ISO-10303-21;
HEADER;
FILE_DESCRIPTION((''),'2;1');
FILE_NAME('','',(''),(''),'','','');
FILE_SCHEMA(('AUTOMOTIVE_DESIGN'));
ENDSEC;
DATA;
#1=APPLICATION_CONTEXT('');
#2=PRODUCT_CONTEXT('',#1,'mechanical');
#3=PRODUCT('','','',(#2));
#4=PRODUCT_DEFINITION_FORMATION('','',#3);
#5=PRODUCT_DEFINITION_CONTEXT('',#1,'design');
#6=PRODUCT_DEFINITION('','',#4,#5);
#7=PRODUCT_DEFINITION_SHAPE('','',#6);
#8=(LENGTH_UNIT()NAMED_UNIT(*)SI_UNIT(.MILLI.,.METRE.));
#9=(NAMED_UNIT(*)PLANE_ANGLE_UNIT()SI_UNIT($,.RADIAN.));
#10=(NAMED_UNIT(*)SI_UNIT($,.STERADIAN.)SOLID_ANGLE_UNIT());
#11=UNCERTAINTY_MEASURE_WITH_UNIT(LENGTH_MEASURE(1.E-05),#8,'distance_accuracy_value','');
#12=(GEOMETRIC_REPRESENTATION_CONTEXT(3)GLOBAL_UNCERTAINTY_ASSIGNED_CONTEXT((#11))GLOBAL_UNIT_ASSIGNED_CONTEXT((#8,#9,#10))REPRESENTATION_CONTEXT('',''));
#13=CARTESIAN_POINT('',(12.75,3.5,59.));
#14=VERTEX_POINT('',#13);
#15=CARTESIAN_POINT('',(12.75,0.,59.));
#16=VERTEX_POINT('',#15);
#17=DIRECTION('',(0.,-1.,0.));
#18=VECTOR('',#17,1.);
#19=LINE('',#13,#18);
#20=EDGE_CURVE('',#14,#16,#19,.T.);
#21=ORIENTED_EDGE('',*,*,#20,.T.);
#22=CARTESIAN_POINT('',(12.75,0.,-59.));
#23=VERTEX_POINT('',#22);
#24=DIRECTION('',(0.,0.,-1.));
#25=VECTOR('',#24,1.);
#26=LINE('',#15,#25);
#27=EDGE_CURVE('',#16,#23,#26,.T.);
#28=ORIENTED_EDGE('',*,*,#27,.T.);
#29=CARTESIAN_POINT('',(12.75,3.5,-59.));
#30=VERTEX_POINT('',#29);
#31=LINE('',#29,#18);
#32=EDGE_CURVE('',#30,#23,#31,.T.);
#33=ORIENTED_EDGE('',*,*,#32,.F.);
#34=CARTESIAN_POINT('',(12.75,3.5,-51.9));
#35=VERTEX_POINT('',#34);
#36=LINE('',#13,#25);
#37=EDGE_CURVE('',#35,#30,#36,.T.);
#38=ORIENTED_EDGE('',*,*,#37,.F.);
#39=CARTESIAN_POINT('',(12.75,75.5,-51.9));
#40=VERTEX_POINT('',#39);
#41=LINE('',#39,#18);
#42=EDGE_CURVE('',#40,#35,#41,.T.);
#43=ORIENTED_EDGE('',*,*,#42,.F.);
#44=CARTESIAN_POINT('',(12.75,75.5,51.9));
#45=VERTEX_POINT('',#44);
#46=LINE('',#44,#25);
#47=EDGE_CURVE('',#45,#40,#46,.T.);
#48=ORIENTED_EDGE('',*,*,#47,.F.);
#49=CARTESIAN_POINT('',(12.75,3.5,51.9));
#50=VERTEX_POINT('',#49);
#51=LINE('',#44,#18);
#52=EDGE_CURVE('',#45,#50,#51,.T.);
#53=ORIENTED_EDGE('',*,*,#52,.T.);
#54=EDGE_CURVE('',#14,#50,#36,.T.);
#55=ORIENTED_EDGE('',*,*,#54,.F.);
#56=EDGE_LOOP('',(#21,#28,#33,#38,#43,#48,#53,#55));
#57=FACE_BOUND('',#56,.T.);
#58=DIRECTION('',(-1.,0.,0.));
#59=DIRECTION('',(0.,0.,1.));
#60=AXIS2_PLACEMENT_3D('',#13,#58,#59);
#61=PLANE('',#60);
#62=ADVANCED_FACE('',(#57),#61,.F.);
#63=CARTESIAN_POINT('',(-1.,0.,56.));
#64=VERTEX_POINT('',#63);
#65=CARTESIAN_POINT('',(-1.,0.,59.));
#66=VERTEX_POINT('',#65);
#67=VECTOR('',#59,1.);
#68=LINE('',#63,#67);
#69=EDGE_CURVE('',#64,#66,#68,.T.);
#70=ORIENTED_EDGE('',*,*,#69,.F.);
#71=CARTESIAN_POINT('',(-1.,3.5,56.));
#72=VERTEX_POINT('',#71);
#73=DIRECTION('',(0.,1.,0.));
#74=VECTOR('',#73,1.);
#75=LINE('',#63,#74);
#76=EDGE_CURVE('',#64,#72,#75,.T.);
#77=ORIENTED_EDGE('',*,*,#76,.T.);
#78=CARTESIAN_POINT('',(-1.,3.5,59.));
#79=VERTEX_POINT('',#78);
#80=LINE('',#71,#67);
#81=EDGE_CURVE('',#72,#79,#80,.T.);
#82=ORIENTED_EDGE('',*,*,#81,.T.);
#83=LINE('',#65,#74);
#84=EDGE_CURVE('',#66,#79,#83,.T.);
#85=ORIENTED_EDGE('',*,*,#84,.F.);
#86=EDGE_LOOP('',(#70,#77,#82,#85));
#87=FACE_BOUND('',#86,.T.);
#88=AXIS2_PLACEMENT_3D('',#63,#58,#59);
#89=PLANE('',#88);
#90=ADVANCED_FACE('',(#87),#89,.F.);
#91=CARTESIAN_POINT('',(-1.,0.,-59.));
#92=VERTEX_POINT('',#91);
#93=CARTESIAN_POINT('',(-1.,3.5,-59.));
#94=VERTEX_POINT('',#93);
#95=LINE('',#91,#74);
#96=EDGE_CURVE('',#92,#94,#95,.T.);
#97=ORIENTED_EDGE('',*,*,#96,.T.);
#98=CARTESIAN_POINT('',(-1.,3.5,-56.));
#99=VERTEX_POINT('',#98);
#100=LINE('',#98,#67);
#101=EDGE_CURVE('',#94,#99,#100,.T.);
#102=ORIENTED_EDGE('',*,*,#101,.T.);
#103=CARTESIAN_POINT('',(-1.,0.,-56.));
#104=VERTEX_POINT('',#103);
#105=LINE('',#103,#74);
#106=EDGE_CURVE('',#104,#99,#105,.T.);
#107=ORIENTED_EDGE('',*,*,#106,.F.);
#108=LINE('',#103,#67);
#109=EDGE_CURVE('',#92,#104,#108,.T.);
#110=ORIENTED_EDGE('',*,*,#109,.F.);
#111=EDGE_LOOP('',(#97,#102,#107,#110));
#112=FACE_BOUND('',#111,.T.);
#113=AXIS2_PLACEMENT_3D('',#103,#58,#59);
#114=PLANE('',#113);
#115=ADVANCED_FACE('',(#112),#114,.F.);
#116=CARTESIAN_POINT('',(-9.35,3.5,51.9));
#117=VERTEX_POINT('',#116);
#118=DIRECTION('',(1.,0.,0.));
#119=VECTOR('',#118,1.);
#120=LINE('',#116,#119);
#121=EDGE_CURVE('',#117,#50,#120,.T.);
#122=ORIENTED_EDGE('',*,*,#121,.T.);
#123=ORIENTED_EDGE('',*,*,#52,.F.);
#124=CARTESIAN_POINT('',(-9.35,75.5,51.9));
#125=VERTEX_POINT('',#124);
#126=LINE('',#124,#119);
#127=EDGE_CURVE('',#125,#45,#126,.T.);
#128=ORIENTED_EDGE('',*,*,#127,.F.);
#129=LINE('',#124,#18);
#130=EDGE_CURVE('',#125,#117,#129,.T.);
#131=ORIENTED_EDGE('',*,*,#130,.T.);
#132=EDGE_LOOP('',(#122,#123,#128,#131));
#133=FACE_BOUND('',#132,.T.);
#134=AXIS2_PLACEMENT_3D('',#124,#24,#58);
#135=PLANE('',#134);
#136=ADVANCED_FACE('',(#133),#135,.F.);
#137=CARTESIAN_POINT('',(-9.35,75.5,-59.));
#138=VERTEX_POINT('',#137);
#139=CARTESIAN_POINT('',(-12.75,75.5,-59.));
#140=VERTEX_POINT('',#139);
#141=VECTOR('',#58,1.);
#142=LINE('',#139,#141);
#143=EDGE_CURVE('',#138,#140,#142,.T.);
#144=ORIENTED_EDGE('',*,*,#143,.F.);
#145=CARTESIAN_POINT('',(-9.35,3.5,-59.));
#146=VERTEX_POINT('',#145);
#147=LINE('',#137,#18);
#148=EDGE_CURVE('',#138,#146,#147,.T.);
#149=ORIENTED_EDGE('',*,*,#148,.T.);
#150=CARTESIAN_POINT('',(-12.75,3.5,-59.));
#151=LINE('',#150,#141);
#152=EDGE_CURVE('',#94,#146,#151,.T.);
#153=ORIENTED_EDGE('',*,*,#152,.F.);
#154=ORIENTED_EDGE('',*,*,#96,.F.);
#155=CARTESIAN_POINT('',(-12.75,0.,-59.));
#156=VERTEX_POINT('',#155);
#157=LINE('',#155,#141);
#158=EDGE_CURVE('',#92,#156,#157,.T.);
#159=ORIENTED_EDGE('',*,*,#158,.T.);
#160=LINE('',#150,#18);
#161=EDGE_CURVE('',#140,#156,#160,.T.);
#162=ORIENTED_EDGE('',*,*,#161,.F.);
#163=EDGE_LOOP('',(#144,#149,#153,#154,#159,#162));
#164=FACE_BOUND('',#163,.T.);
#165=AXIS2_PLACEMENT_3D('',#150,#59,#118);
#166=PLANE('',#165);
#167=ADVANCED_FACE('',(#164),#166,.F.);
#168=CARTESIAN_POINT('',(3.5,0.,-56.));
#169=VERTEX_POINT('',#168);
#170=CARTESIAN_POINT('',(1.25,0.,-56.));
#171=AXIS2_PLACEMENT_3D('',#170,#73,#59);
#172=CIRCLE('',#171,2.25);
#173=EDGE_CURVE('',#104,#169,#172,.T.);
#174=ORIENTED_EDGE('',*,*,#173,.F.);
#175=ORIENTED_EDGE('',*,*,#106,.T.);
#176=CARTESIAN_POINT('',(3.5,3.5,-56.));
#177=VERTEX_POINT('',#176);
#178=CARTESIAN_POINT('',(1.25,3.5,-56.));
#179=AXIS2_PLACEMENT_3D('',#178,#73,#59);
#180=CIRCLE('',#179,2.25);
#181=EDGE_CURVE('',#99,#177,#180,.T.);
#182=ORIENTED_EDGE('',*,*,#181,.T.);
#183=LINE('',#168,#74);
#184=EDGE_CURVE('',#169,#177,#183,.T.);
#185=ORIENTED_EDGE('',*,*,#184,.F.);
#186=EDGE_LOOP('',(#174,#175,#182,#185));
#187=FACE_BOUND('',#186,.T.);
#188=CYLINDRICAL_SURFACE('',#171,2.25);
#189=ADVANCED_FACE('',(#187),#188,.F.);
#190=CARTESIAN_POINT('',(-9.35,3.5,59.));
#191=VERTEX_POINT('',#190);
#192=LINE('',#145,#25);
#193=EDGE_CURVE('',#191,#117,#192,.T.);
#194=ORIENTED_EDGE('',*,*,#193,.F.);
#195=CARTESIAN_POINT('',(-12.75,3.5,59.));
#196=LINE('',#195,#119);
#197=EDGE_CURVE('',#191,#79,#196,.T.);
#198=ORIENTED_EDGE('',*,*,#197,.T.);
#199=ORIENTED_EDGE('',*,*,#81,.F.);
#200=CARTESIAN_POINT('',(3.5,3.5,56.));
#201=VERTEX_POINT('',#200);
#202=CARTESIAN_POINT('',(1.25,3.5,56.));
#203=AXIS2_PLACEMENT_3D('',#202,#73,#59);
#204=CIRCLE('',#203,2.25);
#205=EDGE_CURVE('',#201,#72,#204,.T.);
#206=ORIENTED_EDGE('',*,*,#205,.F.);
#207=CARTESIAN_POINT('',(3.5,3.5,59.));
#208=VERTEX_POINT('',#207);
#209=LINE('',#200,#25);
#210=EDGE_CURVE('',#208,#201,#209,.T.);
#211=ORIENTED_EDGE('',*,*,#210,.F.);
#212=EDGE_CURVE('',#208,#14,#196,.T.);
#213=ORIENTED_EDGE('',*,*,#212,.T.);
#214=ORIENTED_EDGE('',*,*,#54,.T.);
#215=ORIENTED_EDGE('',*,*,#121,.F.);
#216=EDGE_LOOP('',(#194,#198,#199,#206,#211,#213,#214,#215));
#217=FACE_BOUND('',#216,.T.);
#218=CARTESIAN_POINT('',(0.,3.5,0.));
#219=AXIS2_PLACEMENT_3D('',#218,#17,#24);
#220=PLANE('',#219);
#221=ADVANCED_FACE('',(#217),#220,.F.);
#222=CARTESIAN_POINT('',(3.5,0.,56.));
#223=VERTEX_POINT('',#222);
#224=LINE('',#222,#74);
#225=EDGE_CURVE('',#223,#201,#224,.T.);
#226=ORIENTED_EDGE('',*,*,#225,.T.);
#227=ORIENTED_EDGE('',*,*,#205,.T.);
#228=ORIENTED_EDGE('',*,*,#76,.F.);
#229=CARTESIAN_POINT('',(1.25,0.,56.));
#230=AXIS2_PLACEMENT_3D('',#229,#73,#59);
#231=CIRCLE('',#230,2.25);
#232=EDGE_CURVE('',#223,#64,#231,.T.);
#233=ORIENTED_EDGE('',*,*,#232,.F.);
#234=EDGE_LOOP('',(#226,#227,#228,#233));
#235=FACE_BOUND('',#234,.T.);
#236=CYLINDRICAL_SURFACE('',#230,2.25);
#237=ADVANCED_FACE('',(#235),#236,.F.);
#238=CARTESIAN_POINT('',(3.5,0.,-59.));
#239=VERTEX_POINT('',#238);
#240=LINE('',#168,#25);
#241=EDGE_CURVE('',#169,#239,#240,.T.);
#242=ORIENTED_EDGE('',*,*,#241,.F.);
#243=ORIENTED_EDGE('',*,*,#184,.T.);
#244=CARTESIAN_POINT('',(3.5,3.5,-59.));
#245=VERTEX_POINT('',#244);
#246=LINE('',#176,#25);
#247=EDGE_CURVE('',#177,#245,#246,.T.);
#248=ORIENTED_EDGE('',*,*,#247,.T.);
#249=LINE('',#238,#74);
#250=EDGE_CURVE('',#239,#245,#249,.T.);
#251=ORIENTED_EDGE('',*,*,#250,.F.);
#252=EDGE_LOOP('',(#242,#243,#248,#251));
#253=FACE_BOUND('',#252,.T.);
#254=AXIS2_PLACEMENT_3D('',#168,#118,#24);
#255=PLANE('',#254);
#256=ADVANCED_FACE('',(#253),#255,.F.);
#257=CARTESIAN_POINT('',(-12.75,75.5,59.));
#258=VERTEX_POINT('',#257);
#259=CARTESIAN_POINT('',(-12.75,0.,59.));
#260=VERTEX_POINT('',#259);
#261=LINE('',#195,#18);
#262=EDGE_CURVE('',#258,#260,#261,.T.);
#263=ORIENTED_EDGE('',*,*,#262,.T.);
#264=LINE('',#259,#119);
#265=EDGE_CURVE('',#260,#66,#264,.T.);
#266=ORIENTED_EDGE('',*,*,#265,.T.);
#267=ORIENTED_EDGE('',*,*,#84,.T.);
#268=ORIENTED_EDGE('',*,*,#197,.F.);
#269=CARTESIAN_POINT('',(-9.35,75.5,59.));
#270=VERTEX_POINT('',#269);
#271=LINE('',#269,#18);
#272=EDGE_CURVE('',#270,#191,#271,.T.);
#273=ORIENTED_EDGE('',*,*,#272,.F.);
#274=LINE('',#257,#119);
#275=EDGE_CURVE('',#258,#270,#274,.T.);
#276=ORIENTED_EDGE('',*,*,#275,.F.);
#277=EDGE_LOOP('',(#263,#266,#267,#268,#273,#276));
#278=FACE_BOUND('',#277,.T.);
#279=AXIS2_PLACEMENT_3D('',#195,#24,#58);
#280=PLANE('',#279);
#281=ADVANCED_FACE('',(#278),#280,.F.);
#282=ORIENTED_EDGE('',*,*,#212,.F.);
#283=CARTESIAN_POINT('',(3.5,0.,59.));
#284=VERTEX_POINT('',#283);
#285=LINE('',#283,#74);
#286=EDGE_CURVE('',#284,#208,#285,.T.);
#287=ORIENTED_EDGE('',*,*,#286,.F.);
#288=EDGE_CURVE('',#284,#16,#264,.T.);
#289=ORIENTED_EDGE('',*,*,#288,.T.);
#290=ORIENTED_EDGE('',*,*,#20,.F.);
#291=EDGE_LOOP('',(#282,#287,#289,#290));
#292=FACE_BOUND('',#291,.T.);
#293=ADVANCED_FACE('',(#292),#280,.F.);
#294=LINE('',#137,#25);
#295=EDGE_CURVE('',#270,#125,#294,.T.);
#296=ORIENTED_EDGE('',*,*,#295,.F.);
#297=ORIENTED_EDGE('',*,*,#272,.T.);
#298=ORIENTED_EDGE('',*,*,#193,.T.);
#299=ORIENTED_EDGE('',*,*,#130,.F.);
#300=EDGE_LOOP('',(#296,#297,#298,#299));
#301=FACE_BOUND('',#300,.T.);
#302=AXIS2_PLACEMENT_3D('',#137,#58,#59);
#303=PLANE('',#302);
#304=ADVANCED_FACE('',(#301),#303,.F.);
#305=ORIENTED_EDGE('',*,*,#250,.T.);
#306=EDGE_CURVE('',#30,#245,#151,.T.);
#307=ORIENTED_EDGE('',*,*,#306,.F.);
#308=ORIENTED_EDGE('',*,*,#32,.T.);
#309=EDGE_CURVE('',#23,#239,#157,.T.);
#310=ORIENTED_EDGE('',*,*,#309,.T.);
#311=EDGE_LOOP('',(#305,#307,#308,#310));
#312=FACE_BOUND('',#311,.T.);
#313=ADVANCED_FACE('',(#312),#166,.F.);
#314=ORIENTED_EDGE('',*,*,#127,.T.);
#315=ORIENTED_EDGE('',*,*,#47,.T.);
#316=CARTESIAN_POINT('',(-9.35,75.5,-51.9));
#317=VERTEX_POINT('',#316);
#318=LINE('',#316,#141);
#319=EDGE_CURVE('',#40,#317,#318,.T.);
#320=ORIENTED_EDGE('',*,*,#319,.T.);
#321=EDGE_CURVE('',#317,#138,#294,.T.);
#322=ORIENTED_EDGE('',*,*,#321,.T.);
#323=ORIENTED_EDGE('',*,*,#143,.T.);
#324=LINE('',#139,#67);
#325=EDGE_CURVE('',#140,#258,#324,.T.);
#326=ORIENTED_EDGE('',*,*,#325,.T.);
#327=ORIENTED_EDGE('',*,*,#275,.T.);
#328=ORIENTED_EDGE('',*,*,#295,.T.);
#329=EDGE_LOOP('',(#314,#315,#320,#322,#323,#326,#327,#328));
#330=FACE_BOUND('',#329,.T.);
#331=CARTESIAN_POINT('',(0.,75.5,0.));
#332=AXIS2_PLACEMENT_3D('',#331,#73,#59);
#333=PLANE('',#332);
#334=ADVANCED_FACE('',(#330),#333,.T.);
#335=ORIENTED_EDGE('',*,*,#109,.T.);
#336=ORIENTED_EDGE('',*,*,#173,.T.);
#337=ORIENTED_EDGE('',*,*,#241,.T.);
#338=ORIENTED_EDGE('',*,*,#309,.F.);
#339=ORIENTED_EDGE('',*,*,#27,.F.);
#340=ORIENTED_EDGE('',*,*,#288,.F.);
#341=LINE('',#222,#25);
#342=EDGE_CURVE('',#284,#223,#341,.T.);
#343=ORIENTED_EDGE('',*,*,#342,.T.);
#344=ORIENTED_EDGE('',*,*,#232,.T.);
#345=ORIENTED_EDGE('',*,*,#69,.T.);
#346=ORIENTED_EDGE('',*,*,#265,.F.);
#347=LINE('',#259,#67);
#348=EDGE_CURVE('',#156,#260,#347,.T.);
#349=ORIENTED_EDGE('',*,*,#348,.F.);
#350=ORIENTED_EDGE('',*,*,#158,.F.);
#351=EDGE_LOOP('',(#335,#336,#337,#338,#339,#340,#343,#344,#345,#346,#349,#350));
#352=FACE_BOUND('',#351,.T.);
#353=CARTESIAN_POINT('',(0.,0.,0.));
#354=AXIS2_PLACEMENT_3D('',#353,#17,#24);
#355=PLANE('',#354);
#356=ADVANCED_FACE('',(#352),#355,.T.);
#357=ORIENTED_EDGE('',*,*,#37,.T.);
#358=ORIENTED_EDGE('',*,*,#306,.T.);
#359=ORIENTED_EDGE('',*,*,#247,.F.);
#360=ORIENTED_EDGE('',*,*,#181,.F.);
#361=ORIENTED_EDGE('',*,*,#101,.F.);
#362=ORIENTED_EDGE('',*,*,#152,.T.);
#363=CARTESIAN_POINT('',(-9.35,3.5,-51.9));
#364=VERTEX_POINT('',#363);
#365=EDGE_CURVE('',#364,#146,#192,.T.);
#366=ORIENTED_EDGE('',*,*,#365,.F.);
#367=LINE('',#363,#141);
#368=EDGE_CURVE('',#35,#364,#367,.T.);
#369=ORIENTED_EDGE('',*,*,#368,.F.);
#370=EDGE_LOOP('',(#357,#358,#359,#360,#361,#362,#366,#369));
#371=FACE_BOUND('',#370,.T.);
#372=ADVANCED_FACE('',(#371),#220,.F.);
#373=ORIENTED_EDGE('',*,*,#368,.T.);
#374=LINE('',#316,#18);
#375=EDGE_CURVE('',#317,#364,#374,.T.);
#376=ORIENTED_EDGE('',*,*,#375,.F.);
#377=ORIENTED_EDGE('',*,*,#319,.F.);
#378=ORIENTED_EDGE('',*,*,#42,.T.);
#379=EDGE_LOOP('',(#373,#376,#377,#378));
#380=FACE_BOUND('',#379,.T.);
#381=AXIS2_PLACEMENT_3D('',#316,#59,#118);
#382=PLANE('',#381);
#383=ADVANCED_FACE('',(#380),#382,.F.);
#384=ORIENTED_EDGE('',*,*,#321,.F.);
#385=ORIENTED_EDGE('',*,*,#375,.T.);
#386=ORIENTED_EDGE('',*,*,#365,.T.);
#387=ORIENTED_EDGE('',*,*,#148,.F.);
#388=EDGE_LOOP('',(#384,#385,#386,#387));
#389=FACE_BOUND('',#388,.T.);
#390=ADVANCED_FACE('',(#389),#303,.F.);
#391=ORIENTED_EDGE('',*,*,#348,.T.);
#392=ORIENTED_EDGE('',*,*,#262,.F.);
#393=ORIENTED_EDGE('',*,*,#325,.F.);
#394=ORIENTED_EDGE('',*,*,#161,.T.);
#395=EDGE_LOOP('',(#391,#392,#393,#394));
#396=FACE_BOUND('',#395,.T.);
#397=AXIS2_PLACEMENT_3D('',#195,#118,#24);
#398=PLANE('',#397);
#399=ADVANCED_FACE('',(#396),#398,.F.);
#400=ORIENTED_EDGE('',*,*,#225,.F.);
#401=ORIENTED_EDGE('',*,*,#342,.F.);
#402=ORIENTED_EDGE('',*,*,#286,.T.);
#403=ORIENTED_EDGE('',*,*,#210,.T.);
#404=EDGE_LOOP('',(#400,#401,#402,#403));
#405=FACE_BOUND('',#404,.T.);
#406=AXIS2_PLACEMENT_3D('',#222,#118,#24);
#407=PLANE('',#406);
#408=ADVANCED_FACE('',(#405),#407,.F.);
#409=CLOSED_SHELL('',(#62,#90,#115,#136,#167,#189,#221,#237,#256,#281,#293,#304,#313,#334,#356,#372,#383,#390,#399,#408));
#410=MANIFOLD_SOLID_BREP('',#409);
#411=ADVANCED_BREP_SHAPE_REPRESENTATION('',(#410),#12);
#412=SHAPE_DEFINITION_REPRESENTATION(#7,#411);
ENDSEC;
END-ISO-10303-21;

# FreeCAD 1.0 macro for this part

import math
import FreeCAD as App
import Part
import Sketcher
from FreeCAD import Vector
Q = App.Units.Quantity


def add_polygon(sketch, points):
    """Adds a closed chain of lines whose ends are joined by coincident constraints."""
    first, n = sketch.GeometryCount, len(points)
    for a, b in zip(points, points[1:] + points[:1]):
        sketch.addGeometry(Part.LineSegment(App.Vector(*a, 0), App.Vector(*b, 0)), False)
    for i in range(n):
        sketch.addConstraint(Sketcher.Constraint("Coincident", first + i, 2, first + (i + 1) % n, 1))

doc = App.newDocument("Part")
body = doc.addObject("PartDesign::Body", "Body")

# Sketch on XZ plane
sketch1 = body.newObject("Sketcher::SketchObject", "Sketch")
sketch1.AttachmentSupport = (doc.getObject("XZ_Plane"), [""])
sketch1.MapMode = "FlatFace"
add_polygon(sketch1, [(-13, -59), (-13, 59), (13, 59), (13, -59)])  # lines 0-3
sketch1.addConstraint([
    Sketcher.Constraint("Vertical", 0),
    Sketcher.Constraint("Horizontal", 1),
    Sketcher.Constraint("Vertical", 2),
    Sketcher.Constraint("Horizontal", 3),
    Sketcher.Constraint("Symmetric", 0, 2, 2, 2, -1, 1),
    Sketcher.Constraint("DistanceY", 0, 1, 0, 2, Q("118 mm")),
    Sketcher.Constraint("DistanceX", 1, 1, 1, 2, Q("25.5 mm")),
])
pad1 = body.newObject("PartDesign::Pad", "Pad")
pad1.Profile = sketch1
pad1.Length = 3.5
pad1.Reversed = True

# Sketch on XZ plane
sketch2 = body.newObject("Sketcher::SketchObject", "Sketch001")
sketch2.AttachmentSupport = (doc.getObject("XZ_Plane"), [""])
sketch2.MapMode = "FlatFace"
sketch2.AttachmentOffset = App.Placement(Vector(0, 0, -3.5), App.Rotation())
sketch2.addGeometry([
    Part.LineSegment(Vector(-1, -59, 0), Vector(-1, -56, 0)),  # 0
    Part.ArcOfCircle(Part.Circle(Vector(1.2, -56, 0), Vector(0, 0, 1), 2.2), math.radians(0), math.radians(180)),  # 1
    Part.LineSegment(Vector(3.5, -56, 0), Vector(3.5, -59, 0)),  # 2
    Part.LineSegment(Vector(3.5, -59, 0), Vector(-1, -59, 0)),  # 3
    Part.LineSegment(Vector(-1, 56, 0), Vector(-1, 59, 0)),  # 4
    Part.LineSegment(Vector(-1, 59, 0), Vector(3.5, 59, 0)),  # 5
    Part.LineSegment(Vector(3.5, 59, 0), Vector(3.5, 56, 0)),  # 6
    Part.ArcOfCircle(Part.Circle(Vector(1.2, 56, 0), Vector(0, 0, 1), 2.2), math.radians(180), math.radians(360)),  # 7
], False)
sketch2.addConstraint([
    Sketcher.Constraint("Tangent", 0, 2, 1, 2),
    Sketcher.Constraint("Tangent", 1, 1, 2, 1),
    Sketcher.Constraint("Coincident", 2, 2, 3, 1),
    Sketcher.Constraint("Coincident", 3, 2, 0, 1),
    Sketcher.Constraint("Coincident", 4, 2, 5, 1),
    Sketcher.Constraint("Coincident", 5, 2, 6, 1),
    Sketcher.Constraint("Tangent", 6, 2, 7, 2),
    Sketcher.Constraint("Tangent", 7, 1, 4, 1),
    Sketcher.Constraint("Vertical", 0),
    Sketcher.Constraint("Vertical", 2),
    Sketcher.Constraint("Horizontal", 3),
    Sketcher.Constraint("Vertical", 4),
    Sketcher.Constraint("Horizontal", 5),
    Sketcher.Constraint("Vertical", 6),
    Sketcher.Constraint("Equal", 1, 7),
    Sketcher.Constraint("Symmetric", 1, 3, 7, 3, -1),
    Sketcher.Constraint("Equal", 2, 4),
    Sketcher.Constraint("DistanceY", 0, 1, 0, 2, Q("3 mm")),
    Sketcher.Constraint("Radius", 1, Q("2.25 mm")),
    Sketcher.Constraint("DistanceY", 1, 3, -1, 1, Q("56 mm")),
    Sketcher.Constraint("DistanceX", 0, 2, -1, 1, Q("1 mm")),
])
pocket1 = body.newObject("PartDesign::Pocket", "Pocket")
pocket1.Profile = sketch2
pocket1.Type = "ThroughAll"
pocket1.Reversed = True

# Sketch on XZ plane
sketch3 = body.newObject("Sketcher::SketchObject", "Sketch002")
sketch3.AttachmentSupport = (doc.getObject("XZ_Plane"), [""])
sketch3.MapMode = "FlatFace"
sketch3.AttachmentOffset = App.Placement(Vector(0, 0, -3.5), App.Rotation())
add_polygon(sketch3, [(-12.8, -59), (-12.8, 59), (-9.3, 59), (-9.3, -59)])  # lines 0-3
sketch3.addConstraint([
    Sketcher.Constraint("Vertical", 0),
    Sketcher.Constraint("Horizontal", 1),
    Sketcher.Constraint("Vertical", 2),
    Sketcher.Constraint("Horizontal", 3),
    Sketcher.Constraint("DistanceY", 0, 1, 0, 2, Q("118 mm")),
    Sketcher.Constraint("DistanceX", 1, 1, 1, 2, Q("3.4 mm")),
    Sketcher.Constraint("DistanceY", -1, 1, 0, 2, Q("59 mm")),
    Sketcher.Constraint("DistanceX", 0, 2, -1, 1, Q("12.75 mm")),
])
pad2 = body.newObject("PartDesign::Pad", "Pad001")
pad2.Profile = sketch3
pad2.Length = 72
pad2.Reversed = True

# Sketch on XZ plane
sketch4 = body.newObject("Sketcher::SketchObject", "Sketch003")
sketch4.AttachmentSupport = (doc.getObject("XZ_Plane"), [""])
sketch4.MapMode = "FlatFace"
sketch4.AttachmentOffset = App.Placement(Vector(0, 0, -3.5), App.Rotation())
add_polygon(sketch4, [(-9, -52), (-9, 52), (13, 52), (13, -52)])  # lines 0-3
sketch4.addConstraint([
    Sketcher.Constraint("Vertical", 0),
    Sketcher.Constraint("Horizontal", 1),
    Sketcher.Constraint("Vertical", 2),
    Sketcher.Constraint("Horizontal", 3),
    Sketcher.Constraint("DistanceX", 1, 1, 1, 2, Q("22.1 mm")),
    Sketcher.Constraint("DistanceY", 0, 1, 0, 2, Q("103.8 mm")),
    Sketcher.Constraint("DistanceY", -1, 1, 0, 2, Q("51.9 mm")),
    Sketcher.Constraint("DistanceX", 0, 2, -1, 1, Q("9.35 mm")),
])
pad3 = body.newObject("PartDesign::Pad", "Pad002")
pad3.Profile = sketch4
pad3.Length = 72
pad3.Reversed = True

doc.recompute()
